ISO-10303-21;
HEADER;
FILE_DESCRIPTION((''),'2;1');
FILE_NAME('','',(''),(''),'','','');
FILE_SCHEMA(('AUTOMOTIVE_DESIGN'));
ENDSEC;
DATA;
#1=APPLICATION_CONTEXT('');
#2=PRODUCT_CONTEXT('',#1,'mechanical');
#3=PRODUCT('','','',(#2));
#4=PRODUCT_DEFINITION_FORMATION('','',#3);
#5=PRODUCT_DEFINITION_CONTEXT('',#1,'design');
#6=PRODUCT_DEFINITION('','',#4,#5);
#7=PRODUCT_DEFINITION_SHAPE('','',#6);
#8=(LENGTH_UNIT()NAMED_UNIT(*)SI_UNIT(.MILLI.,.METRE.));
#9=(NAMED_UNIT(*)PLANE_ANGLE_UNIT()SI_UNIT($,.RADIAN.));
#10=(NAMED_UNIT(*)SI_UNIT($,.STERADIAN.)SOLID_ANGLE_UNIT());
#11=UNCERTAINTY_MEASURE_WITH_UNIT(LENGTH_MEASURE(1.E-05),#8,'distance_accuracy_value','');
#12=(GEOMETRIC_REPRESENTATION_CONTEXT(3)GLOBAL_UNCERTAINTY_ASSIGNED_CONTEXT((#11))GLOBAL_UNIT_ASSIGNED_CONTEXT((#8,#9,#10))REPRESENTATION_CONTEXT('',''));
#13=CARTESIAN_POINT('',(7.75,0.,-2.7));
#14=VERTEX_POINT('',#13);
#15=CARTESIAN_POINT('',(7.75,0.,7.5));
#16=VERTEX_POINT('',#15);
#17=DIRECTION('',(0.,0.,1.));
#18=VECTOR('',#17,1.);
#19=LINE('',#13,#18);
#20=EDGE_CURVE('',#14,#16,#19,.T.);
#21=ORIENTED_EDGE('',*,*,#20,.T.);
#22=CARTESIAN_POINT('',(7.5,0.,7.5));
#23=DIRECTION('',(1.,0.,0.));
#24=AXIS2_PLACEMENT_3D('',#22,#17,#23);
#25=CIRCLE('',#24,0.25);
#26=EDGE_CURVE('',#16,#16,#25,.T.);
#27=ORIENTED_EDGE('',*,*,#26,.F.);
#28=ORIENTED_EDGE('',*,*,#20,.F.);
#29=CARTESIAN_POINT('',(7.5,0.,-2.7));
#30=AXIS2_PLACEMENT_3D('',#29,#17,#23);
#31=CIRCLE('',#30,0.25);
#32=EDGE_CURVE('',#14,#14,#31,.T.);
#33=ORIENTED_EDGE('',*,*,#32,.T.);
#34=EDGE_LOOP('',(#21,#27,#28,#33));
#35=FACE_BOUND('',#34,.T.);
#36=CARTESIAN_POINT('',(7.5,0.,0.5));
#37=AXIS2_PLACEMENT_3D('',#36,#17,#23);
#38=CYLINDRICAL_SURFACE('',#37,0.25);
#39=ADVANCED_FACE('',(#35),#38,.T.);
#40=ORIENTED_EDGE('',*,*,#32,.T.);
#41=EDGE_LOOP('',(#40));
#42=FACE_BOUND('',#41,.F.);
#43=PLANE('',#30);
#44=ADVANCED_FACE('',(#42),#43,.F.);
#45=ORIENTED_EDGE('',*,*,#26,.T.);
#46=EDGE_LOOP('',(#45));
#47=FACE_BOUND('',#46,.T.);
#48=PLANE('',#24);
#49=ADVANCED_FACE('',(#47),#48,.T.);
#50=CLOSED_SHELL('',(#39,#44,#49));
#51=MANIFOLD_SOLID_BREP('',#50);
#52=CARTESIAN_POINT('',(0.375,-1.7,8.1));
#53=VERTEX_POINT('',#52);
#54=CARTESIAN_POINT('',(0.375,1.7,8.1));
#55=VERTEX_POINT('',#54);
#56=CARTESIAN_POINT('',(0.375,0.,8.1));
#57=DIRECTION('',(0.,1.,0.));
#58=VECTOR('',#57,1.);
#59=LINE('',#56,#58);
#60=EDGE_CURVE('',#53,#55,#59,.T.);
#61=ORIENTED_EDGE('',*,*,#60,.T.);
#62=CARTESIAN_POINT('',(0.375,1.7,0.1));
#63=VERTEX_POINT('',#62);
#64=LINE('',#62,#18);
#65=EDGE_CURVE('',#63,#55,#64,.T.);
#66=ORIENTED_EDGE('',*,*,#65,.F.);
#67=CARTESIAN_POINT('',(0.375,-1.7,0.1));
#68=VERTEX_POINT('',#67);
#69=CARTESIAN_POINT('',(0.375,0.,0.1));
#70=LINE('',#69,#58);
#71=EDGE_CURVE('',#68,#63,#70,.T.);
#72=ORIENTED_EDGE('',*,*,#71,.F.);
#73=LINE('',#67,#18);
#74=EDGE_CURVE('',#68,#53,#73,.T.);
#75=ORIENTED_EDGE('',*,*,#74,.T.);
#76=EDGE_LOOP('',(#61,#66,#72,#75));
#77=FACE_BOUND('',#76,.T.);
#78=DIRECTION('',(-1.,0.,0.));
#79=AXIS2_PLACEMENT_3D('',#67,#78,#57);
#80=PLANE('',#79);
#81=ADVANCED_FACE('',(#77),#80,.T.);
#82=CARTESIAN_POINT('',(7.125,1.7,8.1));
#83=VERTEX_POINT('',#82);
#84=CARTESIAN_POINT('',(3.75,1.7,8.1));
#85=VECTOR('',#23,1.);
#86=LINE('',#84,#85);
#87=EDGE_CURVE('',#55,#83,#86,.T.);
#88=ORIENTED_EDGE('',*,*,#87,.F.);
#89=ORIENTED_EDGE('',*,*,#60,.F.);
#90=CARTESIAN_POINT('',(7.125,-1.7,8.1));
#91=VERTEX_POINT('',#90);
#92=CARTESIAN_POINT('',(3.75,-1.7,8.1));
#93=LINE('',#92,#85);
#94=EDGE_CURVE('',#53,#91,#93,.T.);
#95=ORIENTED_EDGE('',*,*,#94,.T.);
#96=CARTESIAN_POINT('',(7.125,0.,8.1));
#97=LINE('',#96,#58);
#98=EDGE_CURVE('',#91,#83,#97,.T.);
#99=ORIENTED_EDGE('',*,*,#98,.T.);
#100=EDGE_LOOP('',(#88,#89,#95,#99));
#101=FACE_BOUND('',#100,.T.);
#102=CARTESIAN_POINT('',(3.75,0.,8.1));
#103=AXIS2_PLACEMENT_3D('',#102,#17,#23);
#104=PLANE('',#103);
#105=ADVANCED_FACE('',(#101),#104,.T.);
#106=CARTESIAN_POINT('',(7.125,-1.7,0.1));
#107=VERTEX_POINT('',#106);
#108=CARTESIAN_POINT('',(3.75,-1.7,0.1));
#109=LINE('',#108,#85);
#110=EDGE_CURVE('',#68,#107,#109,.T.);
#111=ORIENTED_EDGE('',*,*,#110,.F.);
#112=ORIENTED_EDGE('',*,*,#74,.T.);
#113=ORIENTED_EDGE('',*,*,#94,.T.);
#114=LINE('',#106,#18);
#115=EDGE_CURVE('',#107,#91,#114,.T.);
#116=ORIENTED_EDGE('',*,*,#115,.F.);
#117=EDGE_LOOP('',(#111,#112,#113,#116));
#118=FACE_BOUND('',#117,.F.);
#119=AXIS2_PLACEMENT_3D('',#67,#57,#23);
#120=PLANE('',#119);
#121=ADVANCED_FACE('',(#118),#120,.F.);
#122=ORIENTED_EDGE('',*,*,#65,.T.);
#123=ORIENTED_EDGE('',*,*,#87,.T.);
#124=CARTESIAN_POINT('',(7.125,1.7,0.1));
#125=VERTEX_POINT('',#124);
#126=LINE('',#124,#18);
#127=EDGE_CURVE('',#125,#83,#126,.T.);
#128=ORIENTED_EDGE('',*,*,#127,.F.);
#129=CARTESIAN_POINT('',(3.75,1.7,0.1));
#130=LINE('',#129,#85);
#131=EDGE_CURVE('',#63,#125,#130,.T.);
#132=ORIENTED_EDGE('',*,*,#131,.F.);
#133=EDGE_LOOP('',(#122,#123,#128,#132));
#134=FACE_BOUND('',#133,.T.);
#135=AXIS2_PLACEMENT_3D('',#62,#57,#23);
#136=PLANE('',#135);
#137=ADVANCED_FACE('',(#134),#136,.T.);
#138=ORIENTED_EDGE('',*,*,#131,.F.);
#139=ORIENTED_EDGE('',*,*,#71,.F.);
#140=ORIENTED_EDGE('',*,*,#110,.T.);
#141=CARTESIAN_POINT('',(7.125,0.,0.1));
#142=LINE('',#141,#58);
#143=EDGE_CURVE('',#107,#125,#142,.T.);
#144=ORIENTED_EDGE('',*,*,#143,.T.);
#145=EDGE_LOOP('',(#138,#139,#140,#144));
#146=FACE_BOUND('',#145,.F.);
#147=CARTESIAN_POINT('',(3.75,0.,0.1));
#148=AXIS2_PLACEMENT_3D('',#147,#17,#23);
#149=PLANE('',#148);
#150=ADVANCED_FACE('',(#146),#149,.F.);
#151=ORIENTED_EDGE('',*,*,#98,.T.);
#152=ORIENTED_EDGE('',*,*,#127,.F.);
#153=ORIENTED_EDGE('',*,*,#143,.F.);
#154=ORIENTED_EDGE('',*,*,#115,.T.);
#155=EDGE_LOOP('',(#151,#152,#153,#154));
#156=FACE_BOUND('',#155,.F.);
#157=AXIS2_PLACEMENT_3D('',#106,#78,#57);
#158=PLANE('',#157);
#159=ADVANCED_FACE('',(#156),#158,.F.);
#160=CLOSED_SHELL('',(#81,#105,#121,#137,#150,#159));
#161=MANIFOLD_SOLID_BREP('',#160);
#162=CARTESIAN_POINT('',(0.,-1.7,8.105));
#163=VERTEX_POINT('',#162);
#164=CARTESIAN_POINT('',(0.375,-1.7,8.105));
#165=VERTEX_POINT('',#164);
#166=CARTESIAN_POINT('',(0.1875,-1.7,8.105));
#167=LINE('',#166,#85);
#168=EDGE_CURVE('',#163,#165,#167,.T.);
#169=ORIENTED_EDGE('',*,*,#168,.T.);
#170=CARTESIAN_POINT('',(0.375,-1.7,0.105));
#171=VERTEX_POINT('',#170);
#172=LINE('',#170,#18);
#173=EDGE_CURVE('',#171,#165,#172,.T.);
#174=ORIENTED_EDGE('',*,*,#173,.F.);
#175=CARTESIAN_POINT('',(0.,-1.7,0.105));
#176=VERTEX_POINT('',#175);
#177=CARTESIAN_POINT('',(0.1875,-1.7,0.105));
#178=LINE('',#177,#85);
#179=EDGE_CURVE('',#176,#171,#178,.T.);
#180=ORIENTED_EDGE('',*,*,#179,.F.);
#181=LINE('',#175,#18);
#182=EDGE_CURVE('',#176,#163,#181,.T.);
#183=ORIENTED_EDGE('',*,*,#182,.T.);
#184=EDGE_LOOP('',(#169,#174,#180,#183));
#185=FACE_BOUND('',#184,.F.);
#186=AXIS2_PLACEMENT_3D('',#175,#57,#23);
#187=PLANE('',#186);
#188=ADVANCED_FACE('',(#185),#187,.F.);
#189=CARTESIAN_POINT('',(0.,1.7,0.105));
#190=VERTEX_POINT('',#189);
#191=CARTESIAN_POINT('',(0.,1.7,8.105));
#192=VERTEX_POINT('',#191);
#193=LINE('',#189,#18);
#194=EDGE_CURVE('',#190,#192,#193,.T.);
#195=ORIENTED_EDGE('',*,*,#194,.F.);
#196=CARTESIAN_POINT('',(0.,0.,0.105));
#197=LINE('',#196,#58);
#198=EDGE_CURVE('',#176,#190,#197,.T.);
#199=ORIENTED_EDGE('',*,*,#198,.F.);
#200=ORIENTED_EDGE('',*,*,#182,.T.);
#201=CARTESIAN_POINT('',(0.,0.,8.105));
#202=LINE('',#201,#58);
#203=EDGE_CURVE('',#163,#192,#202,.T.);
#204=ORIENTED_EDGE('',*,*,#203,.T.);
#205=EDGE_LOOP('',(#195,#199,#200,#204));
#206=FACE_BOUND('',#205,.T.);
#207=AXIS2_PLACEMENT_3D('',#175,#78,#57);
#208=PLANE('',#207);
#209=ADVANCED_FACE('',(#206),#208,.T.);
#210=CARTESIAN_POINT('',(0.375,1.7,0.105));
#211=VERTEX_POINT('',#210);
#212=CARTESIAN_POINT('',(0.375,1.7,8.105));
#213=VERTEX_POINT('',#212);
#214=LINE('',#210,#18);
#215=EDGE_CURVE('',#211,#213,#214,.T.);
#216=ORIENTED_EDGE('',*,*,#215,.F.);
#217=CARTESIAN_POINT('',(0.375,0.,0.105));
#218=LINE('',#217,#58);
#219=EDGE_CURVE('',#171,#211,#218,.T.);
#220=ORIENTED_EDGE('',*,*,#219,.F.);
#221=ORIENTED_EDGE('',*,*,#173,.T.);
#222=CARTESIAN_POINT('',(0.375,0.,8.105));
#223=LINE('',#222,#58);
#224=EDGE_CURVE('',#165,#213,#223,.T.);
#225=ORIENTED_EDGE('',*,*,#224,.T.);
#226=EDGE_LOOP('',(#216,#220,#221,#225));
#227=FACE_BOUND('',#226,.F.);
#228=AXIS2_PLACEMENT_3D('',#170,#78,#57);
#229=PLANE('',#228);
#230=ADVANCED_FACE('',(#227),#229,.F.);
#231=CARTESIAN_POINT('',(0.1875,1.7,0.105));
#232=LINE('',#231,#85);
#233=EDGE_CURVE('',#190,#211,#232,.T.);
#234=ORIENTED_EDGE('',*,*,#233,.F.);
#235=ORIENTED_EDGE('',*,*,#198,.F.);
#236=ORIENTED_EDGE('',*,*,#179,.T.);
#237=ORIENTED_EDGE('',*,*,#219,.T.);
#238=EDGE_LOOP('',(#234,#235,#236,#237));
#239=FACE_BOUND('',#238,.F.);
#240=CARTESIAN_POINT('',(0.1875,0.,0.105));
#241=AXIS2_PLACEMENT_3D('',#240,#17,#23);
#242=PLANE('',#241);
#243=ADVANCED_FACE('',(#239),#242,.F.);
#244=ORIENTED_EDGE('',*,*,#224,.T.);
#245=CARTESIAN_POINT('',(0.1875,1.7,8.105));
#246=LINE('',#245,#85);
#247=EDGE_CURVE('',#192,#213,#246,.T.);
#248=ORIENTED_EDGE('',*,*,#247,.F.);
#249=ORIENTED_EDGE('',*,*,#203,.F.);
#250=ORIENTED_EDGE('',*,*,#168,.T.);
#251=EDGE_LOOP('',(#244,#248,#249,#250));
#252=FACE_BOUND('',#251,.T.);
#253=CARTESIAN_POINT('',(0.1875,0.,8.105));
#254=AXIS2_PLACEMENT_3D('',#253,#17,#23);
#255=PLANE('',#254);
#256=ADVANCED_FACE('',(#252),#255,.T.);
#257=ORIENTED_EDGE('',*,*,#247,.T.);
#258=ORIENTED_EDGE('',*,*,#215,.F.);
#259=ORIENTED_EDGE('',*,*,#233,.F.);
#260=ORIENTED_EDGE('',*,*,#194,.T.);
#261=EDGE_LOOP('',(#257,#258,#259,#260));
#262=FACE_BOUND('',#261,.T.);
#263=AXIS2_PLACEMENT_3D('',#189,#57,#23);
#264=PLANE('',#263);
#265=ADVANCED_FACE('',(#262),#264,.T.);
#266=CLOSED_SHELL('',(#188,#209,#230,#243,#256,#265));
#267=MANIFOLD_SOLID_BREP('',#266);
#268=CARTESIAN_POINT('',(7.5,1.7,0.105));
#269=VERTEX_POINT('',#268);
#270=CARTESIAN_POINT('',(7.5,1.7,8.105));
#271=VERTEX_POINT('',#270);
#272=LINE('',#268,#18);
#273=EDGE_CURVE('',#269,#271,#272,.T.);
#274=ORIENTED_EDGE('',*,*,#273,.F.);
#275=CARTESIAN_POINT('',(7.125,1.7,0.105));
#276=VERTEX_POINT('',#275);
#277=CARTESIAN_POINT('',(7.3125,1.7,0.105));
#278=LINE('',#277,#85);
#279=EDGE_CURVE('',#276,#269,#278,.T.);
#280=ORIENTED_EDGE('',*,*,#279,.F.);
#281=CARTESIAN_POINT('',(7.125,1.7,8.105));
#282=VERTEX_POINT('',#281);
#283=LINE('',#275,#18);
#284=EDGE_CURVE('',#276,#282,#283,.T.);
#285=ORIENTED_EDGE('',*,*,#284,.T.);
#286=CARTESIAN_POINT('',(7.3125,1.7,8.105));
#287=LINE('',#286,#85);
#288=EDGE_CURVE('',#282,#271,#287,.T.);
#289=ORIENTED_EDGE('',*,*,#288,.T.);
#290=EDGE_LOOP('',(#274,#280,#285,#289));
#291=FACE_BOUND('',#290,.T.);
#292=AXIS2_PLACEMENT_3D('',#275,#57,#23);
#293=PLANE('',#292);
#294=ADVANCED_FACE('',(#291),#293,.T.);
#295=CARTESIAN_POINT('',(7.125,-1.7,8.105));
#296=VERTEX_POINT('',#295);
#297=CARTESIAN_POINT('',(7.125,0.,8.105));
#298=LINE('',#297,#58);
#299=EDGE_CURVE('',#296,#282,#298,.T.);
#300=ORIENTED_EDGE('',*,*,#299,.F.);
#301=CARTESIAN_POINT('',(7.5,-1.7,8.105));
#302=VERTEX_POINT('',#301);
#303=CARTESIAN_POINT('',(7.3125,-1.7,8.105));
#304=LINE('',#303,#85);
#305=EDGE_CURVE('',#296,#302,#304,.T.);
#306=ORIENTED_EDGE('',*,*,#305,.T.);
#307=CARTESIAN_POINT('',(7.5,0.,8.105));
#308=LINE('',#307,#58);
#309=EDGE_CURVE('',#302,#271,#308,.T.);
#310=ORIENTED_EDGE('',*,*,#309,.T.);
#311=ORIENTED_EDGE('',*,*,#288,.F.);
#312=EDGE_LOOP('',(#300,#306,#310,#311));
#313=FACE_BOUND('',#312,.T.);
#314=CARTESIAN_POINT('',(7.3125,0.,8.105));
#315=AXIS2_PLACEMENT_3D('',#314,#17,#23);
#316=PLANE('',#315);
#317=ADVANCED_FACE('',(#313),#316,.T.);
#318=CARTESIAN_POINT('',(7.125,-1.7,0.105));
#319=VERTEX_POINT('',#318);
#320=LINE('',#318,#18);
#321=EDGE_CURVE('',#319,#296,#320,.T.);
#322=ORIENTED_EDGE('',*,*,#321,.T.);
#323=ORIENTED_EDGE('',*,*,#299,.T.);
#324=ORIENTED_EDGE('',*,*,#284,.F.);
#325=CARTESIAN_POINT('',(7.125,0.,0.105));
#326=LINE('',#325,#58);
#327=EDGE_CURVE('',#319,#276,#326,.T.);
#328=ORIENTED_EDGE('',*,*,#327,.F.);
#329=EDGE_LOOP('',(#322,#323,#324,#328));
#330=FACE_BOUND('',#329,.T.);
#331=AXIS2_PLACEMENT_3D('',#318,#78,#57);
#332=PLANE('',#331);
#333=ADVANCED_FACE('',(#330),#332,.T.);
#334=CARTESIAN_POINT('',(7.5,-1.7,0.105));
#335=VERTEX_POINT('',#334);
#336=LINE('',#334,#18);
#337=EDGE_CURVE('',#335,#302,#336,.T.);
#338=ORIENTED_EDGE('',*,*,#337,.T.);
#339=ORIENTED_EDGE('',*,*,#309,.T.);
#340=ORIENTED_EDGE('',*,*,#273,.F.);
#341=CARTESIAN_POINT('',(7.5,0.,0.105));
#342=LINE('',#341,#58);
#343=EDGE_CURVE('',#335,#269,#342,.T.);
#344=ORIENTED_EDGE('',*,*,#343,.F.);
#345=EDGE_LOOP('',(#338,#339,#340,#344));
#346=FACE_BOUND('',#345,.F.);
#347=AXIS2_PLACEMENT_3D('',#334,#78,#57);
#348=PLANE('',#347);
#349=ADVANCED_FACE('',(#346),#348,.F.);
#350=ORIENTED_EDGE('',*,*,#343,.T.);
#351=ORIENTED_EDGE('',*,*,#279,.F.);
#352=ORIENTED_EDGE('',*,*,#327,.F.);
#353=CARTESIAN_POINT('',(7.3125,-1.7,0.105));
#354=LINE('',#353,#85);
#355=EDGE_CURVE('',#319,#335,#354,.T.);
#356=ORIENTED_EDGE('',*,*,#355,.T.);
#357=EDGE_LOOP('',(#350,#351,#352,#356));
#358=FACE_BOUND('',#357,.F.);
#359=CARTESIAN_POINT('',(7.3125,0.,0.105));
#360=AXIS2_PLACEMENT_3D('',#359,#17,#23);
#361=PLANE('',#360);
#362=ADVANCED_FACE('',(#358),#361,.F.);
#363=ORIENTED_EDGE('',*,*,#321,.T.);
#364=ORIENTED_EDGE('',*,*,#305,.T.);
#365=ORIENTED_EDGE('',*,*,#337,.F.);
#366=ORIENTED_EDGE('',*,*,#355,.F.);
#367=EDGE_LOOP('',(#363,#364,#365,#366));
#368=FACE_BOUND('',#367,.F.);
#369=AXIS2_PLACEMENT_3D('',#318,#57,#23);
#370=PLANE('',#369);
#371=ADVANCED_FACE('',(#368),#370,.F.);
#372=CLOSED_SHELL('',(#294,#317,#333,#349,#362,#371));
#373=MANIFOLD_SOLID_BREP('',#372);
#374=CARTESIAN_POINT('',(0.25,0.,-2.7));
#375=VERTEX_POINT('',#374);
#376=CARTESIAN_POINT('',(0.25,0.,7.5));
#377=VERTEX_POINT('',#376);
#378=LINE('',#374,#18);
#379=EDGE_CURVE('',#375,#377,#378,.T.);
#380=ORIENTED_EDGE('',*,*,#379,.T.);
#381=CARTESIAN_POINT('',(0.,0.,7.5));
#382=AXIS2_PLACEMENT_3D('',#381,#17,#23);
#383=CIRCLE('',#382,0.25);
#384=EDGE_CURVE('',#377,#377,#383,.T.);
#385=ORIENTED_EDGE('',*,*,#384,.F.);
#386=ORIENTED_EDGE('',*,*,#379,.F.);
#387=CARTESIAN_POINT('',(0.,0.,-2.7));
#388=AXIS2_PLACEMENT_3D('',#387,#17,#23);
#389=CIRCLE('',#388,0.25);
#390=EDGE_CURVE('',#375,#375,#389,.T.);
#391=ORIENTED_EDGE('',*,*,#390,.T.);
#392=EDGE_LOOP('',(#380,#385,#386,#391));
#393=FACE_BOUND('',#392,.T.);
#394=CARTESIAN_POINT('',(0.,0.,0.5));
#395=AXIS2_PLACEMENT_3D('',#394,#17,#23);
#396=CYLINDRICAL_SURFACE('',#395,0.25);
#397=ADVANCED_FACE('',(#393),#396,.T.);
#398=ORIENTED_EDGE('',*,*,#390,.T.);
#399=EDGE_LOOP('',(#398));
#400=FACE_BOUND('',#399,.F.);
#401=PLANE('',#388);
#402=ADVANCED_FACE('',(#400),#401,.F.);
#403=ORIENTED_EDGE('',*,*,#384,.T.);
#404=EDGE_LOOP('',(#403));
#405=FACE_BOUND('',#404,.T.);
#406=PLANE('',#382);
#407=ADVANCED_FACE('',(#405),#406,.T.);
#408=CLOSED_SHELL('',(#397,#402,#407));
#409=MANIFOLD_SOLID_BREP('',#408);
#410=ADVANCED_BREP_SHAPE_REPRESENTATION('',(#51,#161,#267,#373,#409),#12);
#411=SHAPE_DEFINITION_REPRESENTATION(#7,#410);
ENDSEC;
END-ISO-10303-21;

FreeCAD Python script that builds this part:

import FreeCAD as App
import Part
import Sketcher
Q = App.Units.Quantity

doc = App.newDocument("Part")
body = doc.addObject("PartDesign::Body", "Body")

# Sketch on XY plane
sketch1 = doc.addObject("Sketcher::SketchObject", "Sketch")
body.addObject(sketch1)
sketch1.AttachmentSupport = (doc.XY_Plane, [""])
sketch1.MapMode = "FlatFace"
sketch1.AttachmentOffset = App.Placement(App.Vector(0, 0, 0.1), App.Rotation())
sketch1.addGeometry(Part.LineSegment(App.Vector(0.4, 1.7, 0), App.Vector(0.4, -1.7, 0)), False)
sketch1.addGeometry(Part.LineSegment(App.Vector(0.4, -1.7, 0), App.Vector(7.1, -1.7, 0)), False)
sketch1.addGeometry(Part.LineSegment(App.Vector(7.1, -1.7, 0), App.Vector(7.1, 1.7, 0)), False)
sketch1.addGeometry(Part.LineSegment(App.Vector(7.1, 1.7, 0), App.Vector(0.4, 1.7, 0)), False)
sketch1.addConstraint(Sketcher.Constraint("Coincident", 0, 2, 1, 1))
sketch1.addConstraint(Sketcher.Constraint("Coincident", 1, 2, 2, 1))
sketch1.addConstraint(Sketcher.Constraint("Coincident", 2, 2, 3, 1))
sketch1.addConstraint(Sketcher.Constraint("Coincident", 3, 2, 0, 1))
sketch1.addConstraint(Sketcher.Constraint("Vertical", 0))
sketch1.addConstraint(Sketcher.Constraint("Horizontal", 1))
sketch1.addConstraint(Sketcher.Constraint("Vertical", 2))
sketch1.addConstraint(Sketcher.Constraint("Horizontal", 3))
sketch1.addConstraint(Sketcher.Constraint("DistanceY", 0, 2, 0, 1, Q("3.4 mm")))
sketch1.addConstraint(Sketcher.Constraint("DistanceX", 1, 1, 1, 2, Q("6.75 mm")))
sketch1.addConstraint(Sketcher.Constraint("DistanceY", 0, 2, -1, 1, Q("1.7 mm")))
sketch1.addConstraint(Sketcher.Constraint("DistanceX", -1, 1, 0, 2, Q("0.375 mm")))
pad1 = doc.addObject("PartDesign::Pad", "Pad")
body.addObject(pad1)
pad1.Profile = sketch1
pad1.Length = 8
body2 = doc.addObject("PartDesign::Body", "Body001")
body2.AllowCompound = True

# Sketch on XY plane
sketch2 = doc.addObject("Sketcher::SketchObject", "Sketch001")
body2.addObject(sketch2)
sketch2.AttachmentSupport = (doc.getObject("XY_Plane001"), [""])
sketch2.MapMode = "FlatFace"
sketch2.AttachmentOffset = App.Placement(App.Vector(0, 0, 0.5), App.Rotation())
sketch2.addGeometry(Part.Circle(App.Vector(0, 0, 0), App.Vector(0, 0, 1), 0.25), False)
sketch2.addGeometry(Part.Circle(App.Vector(7.5, 0, 0), App.Vector(0, 0, 1), 0.25), False)
sketch2.addConstraint(Sketcher.Constraint("Coincident", 0, 3, -1, 1))
sketch2.addConstraint(Sketcher.Constraint("Equal", 0, 1))
sketch2.addConstraint(Sketcher.Constraint("PointOnObject", 1, 3, -1))
sketch2.addConstraint(Sketcher.Constraint("Diameter", 0, Q("0.5 mm")))
sketch2.addConstraint(Sketcher.Constraint("DistanceX", -1, 1, 1, 3, Q("7.5 mm")))
pad2 = doc.addObject("PartDesign::Pad", "Pad001")
body2.addObject(pad2)
pad2.Profile = sketch2
pad2.Type = "TwoLengths"
pad2.Length = 7
pad2.Length2 = 3.2
body3 = doc.addObject("PartDesign::Body", "Body002")
body3.AllowCompound = True

# Sketch on XY plane
sketch3 = doc.addObject("Sketcher::SketchObject", "Sketch002")
body3.addObject(sketch3)
sketch3.AttachmentSupport = (doc.getObject("XY_Plane002"), [""])
sketch3.MapMode = "FlatFace"
sketch3.AttachmentOffset = App.Placement(App.Vector(0, 0, 0.105), App.Rotation())
sketch3.addGeometry(Part.LineSegment(App.Vector(0, 1.7, 0), App.Vector(0, -1.7, 0)), False)
sketch3.addGeometry(Part.LineSegment(App.Vector(0, -1.7, 0), App.Vector(0.38, -1.7, 0)), False)
sketch3.addGeometry(Part.LineSegment(App.Vector(0.38, -1.7, 0), App.Vector(0.38, 1.7, 0)), False)
sketch3.addGeometry(Part.LineSegment(App.Vector(0.38, 1.7, 0), App.Vector(0, 1.7, 0)), False)
sketch3.addGeometry(Part.LineSegment(App.Vector(7.12, 1.7, 0), App.Vector(7.12, -1.7, 0)), False)
sketch3.addGeometry(Part.LineSegment(App.Vector(7.12, -1.7, 0), App.Vector(7.5, -1.7, 0)), False)
sketch3.addGeometry(Part.LineSegment(App.Vector(7.5, -1.7, 0), App.Vector(7.5, 1.7, 0)), False)
sketch3.addGeometry(Part.LineSegment(App.Vector(7.5, 1.7, 0), App.Vector(7.12, 1.7, 0)), False)
sketch3.addConstraint(Sketcher.Constraint("Coincident", 0, 2, 1, 1))
sketch3.addConstraint(Sketcher.Constraint("Coincident", 1, 2, 2, 1))
sketch3.addConstraint(Sketcher.Constraint("Coincident", 2, 2, 3, 1))
sketch3.addConstraint(Sketcher.Constraint("Coincident", 3, 2, 0, 1))
sketch3.addConstraint(Sketcher.Constraint("Coincident", 4, 2, 5, 1))
sketch3.addConstraint(Sketcher.Constraint("Coincident", 5, 2, 6, 1))
sketch3.addConstraint(Sketcher.Constraint("Coincident", 6, 2, 7, 1))
sketch3.addConstraint(Sketcher.Constraint("Coincident", 7, 2, 4, 1))
sketch3.addConstraint(Sketcher.Constraint("Vertical", 0))
sketch3.addConstraint(Sketcher.Constraint("Horizontal", 1))
sketch3.addConstraint(Sketcher.Constraint("Vertical", 2))
sketch3.addConstraint(Sketcher.Constraint("Horizontal", 3))
sketch3.addConstraint(Sketcher.Constraint("Vertical", 4))
sketch3.addConstraint(Sketcher.Constraint("Horizontal", 5))
sketch3.addConstraint(Sketcher.Constraint("Vertical", 6))
sketch3.addConstraint(Sketcher.Constraint("Horizontal", 7))
sketch3.addConstraint(Sketcher.Constraint("Symmetric", 0, 2, 3, 2, -1, 1))
sketch3.addConstraint(Sketcher.Constraint("Horizontal", 1, 2, 4, 2))
sketch3.addConstraint(Sketcher.Constraint("Horizontal", 3, 2, 6, 2))
sketch3.addConstraint(Sketcher.Constraint("Equal", 3, 5))
sketch3.addConstraint(Sketcher.Constraint("DistanceY", 0, 2, 0, 1, Q("3.4 mm")))
sketch3.addConstraint(Sketcher.Constraint("DistanceX", -1, 1, 5, 2, Q("7.5 mm")))
sketch3.addConstraint(Sketcher.Constraint("DistanceX", 1, 1, 1, 2, Q("0.375 mm")))
pad3 = doc.addObject("PartDesign::Pad", "Pad002")
body3.addObject(pad3)
pad3.Profile = sketch3
pad3.Length = 8

doc.recompute()
